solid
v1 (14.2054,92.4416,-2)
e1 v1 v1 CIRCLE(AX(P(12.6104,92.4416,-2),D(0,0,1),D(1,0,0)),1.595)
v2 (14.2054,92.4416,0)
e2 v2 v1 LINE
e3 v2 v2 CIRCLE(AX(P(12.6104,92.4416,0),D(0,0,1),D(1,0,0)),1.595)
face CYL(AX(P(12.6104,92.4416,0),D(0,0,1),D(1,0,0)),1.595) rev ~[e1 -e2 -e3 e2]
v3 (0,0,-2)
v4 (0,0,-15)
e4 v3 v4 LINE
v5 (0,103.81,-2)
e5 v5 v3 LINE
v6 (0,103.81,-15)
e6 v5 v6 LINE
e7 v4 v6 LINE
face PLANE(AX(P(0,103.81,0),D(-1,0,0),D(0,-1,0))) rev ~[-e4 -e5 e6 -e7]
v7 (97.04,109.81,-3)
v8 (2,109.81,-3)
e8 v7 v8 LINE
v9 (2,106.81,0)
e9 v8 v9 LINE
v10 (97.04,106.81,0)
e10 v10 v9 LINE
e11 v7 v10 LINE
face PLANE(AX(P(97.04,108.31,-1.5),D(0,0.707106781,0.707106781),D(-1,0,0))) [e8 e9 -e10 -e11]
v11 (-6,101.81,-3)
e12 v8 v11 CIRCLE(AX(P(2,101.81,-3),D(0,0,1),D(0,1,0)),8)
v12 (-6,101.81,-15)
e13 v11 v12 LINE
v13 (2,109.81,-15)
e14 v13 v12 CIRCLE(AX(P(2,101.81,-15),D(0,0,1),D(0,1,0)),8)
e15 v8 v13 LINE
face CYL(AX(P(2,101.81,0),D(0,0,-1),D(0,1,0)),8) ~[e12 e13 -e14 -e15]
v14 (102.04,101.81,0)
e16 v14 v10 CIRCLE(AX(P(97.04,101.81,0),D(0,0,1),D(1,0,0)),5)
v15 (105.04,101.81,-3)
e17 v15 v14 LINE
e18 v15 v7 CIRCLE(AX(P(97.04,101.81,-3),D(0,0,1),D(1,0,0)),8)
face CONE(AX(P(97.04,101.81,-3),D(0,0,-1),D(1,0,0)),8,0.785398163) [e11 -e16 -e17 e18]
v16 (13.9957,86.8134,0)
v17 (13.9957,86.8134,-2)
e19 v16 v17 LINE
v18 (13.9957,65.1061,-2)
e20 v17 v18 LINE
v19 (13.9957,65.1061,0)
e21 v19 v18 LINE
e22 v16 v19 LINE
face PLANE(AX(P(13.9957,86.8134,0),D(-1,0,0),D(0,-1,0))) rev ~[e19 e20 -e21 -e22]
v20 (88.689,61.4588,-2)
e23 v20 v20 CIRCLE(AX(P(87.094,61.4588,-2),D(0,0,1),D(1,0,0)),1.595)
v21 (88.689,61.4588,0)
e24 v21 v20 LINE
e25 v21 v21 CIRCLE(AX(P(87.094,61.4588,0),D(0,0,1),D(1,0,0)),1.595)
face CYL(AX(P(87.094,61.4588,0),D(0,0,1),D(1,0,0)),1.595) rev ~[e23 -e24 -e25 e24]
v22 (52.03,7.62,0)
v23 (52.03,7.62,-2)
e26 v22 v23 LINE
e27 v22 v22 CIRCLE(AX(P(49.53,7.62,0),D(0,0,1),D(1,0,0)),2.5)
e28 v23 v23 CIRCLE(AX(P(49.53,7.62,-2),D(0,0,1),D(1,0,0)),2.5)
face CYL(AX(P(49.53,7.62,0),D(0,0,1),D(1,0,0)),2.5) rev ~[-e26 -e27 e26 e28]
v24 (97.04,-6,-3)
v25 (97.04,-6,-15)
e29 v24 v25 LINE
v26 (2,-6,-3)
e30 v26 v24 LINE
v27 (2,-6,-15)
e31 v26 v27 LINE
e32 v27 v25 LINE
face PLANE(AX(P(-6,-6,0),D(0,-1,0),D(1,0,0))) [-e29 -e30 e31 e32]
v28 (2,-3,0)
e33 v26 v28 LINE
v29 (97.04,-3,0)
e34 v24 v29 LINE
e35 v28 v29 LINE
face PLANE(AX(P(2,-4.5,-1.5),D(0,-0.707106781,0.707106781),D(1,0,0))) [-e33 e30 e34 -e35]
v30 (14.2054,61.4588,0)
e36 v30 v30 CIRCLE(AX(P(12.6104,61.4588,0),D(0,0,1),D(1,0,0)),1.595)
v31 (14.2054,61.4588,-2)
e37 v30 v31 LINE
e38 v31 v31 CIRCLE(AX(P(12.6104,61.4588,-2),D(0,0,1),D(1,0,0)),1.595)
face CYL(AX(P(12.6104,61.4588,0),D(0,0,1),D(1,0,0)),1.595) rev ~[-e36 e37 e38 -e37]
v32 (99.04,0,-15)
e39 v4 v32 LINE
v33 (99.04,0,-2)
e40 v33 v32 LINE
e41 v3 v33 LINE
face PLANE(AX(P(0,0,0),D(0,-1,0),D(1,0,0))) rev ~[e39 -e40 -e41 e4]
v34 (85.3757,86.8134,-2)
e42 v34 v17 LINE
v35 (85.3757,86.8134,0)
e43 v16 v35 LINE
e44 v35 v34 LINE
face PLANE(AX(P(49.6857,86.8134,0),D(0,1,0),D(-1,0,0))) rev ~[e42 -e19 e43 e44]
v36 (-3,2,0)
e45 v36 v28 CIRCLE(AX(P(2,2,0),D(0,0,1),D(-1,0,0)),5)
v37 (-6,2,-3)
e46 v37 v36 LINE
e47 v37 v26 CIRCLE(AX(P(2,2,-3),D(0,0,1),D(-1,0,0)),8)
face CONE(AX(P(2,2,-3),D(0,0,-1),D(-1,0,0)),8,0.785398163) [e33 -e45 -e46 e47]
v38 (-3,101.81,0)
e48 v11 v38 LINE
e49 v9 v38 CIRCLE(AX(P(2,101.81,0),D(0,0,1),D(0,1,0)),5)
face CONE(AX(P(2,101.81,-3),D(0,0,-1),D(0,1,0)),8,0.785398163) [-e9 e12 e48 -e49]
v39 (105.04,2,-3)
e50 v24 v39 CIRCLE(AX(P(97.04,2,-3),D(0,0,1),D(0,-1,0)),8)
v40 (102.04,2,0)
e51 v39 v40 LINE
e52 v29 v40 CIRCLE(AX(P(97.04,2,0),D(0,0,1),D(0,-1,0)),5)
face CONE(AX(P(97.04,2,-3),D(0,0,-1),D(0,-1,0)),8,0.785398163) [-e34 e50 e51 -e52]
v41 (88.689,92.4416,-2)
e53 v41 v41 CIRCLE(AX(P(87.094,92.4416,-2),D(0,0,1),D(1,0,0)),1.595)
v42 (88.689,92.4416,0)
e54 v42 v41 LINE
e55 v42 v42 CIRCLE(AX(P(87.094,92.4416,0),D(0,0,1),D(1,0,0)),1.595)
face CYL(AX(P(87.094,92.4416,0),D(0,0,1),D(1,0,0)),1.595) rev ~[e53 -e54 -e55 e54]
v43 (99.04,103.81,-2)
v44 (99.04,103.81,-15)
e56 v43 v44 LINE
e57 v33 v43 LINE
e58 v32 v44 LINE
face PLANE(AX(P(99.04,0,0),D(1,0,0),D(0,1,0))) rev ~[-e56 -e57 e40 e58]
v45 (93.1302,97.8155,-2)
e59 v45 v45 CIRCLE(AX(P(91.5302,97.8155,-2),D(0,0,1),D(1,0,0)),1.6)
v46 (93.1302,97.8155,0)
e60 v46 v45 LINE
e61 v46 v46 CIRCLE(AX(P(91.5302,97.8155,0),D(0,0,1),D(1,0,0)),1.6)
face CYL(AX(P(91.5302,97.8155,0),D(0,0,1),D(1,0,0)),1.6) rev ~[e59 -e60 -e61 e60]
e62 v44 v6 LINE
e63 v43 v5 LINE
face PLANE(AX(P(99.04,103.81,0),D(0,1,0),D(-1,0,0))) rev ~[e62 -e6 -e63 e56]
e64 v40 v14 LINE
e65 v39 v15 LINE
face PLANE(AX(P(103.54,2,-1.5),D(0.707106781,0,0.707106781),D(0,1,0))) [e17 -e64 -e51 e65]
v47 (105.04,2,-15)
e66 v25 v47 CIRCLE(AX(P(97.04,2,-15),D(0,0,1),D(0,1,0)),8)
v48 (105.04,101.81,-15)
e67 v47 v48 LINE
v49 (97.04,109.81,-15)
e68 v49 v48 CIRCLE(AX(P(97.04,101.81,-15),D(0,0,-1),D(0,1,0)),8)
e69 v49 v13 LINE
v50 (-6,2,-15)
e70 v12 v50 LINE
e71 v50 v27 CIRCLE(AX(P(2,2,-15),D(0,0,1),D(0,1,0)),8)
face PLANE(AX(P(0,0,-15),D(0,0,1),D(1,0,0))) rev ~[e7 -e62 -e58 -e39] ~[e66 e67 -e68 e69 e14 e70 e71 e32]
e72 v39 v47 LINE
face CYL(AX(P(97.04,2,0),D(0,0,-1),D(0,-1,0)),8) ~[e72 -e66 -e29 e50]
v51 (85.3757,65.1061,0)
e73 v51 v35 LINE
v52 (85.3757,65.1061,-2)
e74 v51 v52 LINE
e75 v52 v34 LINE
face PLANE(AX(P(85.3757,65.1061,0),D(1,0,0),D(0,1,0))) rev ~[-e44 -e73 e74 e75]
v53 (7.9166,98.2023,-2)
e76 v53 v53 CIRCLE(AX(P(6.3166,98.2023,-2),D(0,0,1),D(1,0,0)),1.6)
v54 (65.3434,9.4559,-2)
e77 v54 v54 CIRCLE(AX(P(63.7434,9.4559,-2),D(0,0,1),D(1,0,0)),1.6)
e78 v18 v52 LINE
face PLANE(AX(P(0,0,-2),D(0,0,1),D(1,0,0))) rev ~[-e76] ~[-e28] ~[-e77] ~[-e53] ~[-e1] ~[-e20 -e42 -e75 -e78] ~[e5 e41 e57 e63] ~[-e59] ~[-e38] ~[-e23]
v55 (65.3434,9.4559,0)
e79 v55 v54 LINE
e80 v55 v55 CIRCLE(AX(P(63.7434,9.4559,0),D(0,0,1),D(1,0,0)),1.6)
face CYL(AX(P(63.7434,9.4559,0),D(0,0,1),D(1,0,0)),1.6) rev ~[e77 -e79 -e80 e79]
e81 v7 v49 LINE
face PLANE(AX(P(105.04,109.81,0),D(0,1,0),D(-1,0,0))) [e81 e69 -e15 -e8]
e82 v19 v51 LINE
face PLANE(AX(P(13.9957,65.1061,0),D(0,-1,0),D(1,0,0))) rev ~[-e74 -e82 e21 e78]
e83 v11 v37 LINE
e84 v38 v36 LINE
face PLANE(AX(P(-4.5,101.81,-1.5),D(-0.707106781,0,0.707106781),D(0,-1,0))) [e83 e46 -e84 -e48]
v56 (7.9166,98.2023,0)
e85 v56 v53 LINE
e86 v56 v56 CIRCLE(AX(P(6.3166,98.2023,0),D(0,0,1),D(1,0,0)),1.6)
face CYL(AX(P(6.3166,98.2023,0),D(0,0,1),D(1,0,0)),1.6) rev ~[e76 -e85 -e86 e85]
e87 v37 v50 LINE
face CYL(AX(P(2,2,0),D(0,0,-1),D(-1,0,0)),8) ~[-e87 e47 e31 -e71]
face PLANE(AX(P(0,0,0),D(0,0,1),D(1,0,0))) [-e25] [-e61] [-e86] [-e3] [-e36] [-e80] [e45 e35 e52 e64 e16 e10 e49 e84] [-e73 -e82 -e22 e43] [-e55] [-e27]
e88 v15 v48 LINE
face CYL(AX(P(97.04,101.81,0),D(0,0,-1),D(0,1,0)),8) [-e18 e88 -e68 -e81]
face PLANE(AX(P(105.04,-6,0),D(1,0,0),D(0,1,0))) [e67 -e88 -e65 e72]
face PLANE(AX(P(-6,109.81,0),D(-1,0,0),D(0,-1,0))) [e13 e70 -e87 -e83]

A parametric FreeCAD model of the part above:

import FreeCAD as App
import Part
import Sketcher
from FreeCAD import Vector
Q = App.Units.Quantity


def edges_at(feature, points):
    """Names of the edges that pass closest to the given points."""
    edges = feature.Shape.Edges
    near = lambda p: min(range(len(edges)), key=lambda i: edges[i].distToShape(Part.Vertex(*p))[0])
    return sorted({f"Edge{near(p) + 1}" for p in points})


def add_polygon(sketch, points):
    """Adds a closed chain of lines whose ends are joined by coincident constraints."""
    first, n = sketch.GeometryCount, len(points)
    for a, b in zip(points, points[1:] + points[:1]):
        sketch.addGeometry(Part.LineSegment(App.Vector(*a, 0), App.Vector(*b, 0)), False)
    for i in range(n):
        sketch.addConstraint(Sketcher.Constraint("Coincident", first + i, 2, first + (i + 1) % n, 1))

doc = App.newDocument("Part")
body = doc.addObject("PartDesign::Body", "Body")

# Sketch on XY plane
sketch1 = body.newObject("Sketcher::SketchObject", "Sketch")
sketch1.AttachmentSupport = (doc.getObject("XY_Plane"), [""])
sketch1.MapMode = "FlatFace"
add_polygon(sketch1, [(105.04, 109.81), (-6, 109.81), (-6, -6), (105.04, -6)])  # lines 0-3
add_polygon(sketch1, [(0, 103.81), (99.04, 103.81), (99.04, 0), (0, 0)])  # lines 4-7
sketch1.addConstraint([
    Sketcher.Constraint("Horizontal", 0),
    Sketcher.Constraint("Vertical", 1),
    Sketcher.Constraint("Horizontal", 2),
    Sketcher.Constraint("Vertical", 3),
    Sketcher.Constraint("Horizontal", 4),
    Sketcher.Constraint("Vertical", 5),
    Sketcher.Constraint("Horizontal", 6),
    Sketcher.Constraint("Vertical", 7),
    Sketcher.Constraint("Coincident", 6, 2, -1, 1),
    Sketcher.Constraint("DistanceX", 0, 2, -1, 1, Q("6 mm")),
    Sketcher.Constraint("DistanceY", 1, 2, -1, 1, Q("6 mm")),
    Sketcher.Constraint("DistanceX", 4, 2, 3, 2, Q("6 mm")),
    Sketcher.Constraint("DistanceY", 4, 2, 3, 2, Q("6 mm")),
    Sketcher.Constraint("DistanceX", 0, 2, 0, 1, Q("111.04 mm")),
    Sketcher.Constraint("DistanceY", 1, 2, 1, 1, Q("115.81 mm")),
])
pad1 = body.newObject("PartDesign::Pad", "Pad")
pad1.Profile = sketch1
pad1.Length = 15
pad1.Reversed = True

# Sketch on XY plane
sketch2 = body.newObject("Sketcher::SketchObject", "Sketch001")
sketch2.AttachmentSupport = (doc.getObject("XY_Plane"), [""])
sketch2.MapMode = "FlatFace"
add_polygon(sketch2, [(99.04, 103.81), (0, 103.81), (0, 0), (99.04, 0)])  # lines 0-3
sketch2.addGeometry(Part.Circle(Vector(63.7434, 9.4559, 0), Vector(0, 0, 1), 1.6), False)  # 4
sketch2.addGeometry(Part.Circle(Vector(6.3166, 98.2023, 0), Vector(0, 0, 1), 1.6), False)  # 5
sketch2.addGeometry(Part.Circle(Vector(91.5302, 97.8155, 0), Vector(0, 0, 1), 1.6), False)  # 6
sketch2.addConstraint([
    Sketcher.Constraint("Horizontal", 0),
    Sketcher.Constraint("Vertical", 1),
    Sketcher.Constraint("Horizontal", 2),
    Sketcher.Constraint("Vertical", 3),
    Sketcher.Constraint("Coincident", 1, 2, -1, 1),
    Sketcher.Constraint("Equal", 4, 5),
    Sketcher.Constraint("Equal", 5, 6),
    Sketcher.Constraint("Diameter", 4, Q("3.2 mm")),
    Sketcher.Constraint("DistanceX", 0, 2, 0, 1, Q("99.04 mm")),
    Sketcher.Constraint("DistanceY", 1, 2, 1, 1, Q("103.81 mm")),
    Sketcher.Constraint("DistanceY", -1, 1, 4, 3, Q("9.456 mm")),
    Sketcher.Constraint("DistanceX", -1, 1, 4, 3, Q("63.7434 mm")),
    Sketcher.Constraint("DistanceX", -1, 1, 5, 3, Q("6.3166 mm")),
    Sketcher.Constraint("DistanceY", -1, 1, 5, 3, Q("98.2023 mm")),
    Sketcher.Constraint("DistanceX", -1, 1, 6, 3, Q("91.5302 mm")),
    Sketcher.Constraint("DistanceY", -1, 1, 6, 3, Q("97.8155 mm")),
])
pad2 = body.newObject("PartDesign::Pad", "Pad001")
pad2.Profile = sketch2
pad2.Length = 2
pad2.Reversed = True
doc.recompute()

fillet = body.newObject("PartDesign::Fillet", "Fillet")
fillet.Base = (pad2, edges_at(pad2, [
    (105.04, -6, -7.5),
    (-6, -6, -7.5),
    (-6, 109.81, -7.5),
    (105.04, 109.81, -7.5),
]))
fillet.Radius = 8
doc.recompute()

chamfer = body.newObject("PartDesign::Chamfer", "Chamfer")
chamfer.Base = (fillet, edges_at(fillet, [
    (-6, 51.905, 0),
    (-3.657, -3.657, 0),
    (49.52, -6, 0),
    (102.697, -3.657, 0),
    (105.04, 51.905, 0),
    (102.697, 107.467, 0),
    (49.52, 109.81, 0),
    (-3.657, 107.467, 0),
]))
chamfer.Size = 3

# Sketch on XY plane
sketch3 = body.newObject("Sketcher::SketchObject", "Sketch002")
sketch3.AttachmentSupport = (doc.getObject("XY_Plane"), [""])
sketch3.MapMode = "FlatFace"
sketch3.addGeometry(Part.Circle(Vector(49.53, 7.62, 0), Vector(0, 0, 1), 2.5), False)
sketch3.addConstraint([
    Sketcher.Constraint("Diameter", 0, Q("5 mm")),
    Sketcher.Constraint("DistanceX", -1, 1, 0, 3, Q("49.53 mm")),
    Sketcher.Constraint("DistanceY", -1, 1, 0, 3, Q("7.62 mm")),
])
pocket1 = body.newObject("PartDesign::Pocket", "Pocket")
pocket1.Profile = sketch3
pocket1.Length = 2

# Sketch on XY plane
sketch4 = body.newObject("Sketcher::SketchObject", "Sketch003")
sketch4.AttachmentSupport = (doc.getObject("XY_Plane"), [""])
sketch4.MapMode = "FlatFace"
sketch4.addGeometry(Part.Circle(Vector(12.6104, 92.4416, 0), Vector(0, 0, 1), 1.595), False)  # 0
sketch4.addGeometry(Part.Circle(Vector(87.094, 61.4588, 0), Vector(0, 0, 1), 1.595), False)  # 1
add_polygon(sketch4, [(85.3757, 86.8134), (13.9957, 86.8134), (13.9957, 65.1061), (85.3757, 65.1061)])  # lines 2-5
sketch4.addGeometry(Part.Circle(Vector(87.094, 92.4416, 0), Vector(0, 0, 1), 1.595), False)  # 6
sketch4.addGeometry(Part.Circle(Vector(12.6104, 61.4588, 0), Vector(0, 0, 1), 1.595), False)  # 7
sketch4.addConstraint([
    Sketcher.Constraint("Horizontal", 2),
    Sketcher.Constraint("Vertical", 3),
    Sketcher.Constraint("Horizontal", 4),
    Sketcher.Constraint("Vertical", 5),
    Sketcher.Constraint("Equal", 0, 1),
    Sketcher.Constraint("Equal", 1, 6),
    Sketcher.Constraint("Equal", 6, 7),
    Sketcher.Constraint("Horizontal", 0, 3, 6, 3),
    Sketcher.Constraint("Horizontal", 1, 3, 7, 3),
    Sketcher.Constraint("Vertical", 1, 3, 6, 3),
    Sketcher.Constraint("Vertical", 0, 3, 7, 3),
    Sketcher.Constraint("Diameter", 0, Q("3.19 mm")),
    Sketcher.Constraint("DistanceX", 2, 2, 2, 1, Q("71.38 mm")),
    Sketcher.Constraint("DistanceY", 3, 2, 3, 1, Q("21.7073 mm")),
    Sketcher.Constraint("DistanceX", -1, 1, 1, 3, Q("87.094 mm")),
    Sketcher.Constraint("DistanceY", -1, 1, 3, 2, Q("65.106 mm")),
    Sketcher.Constraint("DistanceX", -1, 1, 0, 3, Q("12.6104 mm")),
    Sketcher.Constraint("DistanceY", -1, 1, 0, 3, Q("92.4416 mm")),
    Sketcher.Constraint("DistanceY", -1, 1, 1, 3, Q("61.4588 mm")),
    Sketcher.Constraint("DistanceX", -1, 1, 2, 2, Q("13.9957 mm")),
])
pocket2 = body.newObject("PartDesign::Pocket", "Pocket001")
pocket2.Profile = sketch4
pocket2.Length = 2

doc.recompute()
